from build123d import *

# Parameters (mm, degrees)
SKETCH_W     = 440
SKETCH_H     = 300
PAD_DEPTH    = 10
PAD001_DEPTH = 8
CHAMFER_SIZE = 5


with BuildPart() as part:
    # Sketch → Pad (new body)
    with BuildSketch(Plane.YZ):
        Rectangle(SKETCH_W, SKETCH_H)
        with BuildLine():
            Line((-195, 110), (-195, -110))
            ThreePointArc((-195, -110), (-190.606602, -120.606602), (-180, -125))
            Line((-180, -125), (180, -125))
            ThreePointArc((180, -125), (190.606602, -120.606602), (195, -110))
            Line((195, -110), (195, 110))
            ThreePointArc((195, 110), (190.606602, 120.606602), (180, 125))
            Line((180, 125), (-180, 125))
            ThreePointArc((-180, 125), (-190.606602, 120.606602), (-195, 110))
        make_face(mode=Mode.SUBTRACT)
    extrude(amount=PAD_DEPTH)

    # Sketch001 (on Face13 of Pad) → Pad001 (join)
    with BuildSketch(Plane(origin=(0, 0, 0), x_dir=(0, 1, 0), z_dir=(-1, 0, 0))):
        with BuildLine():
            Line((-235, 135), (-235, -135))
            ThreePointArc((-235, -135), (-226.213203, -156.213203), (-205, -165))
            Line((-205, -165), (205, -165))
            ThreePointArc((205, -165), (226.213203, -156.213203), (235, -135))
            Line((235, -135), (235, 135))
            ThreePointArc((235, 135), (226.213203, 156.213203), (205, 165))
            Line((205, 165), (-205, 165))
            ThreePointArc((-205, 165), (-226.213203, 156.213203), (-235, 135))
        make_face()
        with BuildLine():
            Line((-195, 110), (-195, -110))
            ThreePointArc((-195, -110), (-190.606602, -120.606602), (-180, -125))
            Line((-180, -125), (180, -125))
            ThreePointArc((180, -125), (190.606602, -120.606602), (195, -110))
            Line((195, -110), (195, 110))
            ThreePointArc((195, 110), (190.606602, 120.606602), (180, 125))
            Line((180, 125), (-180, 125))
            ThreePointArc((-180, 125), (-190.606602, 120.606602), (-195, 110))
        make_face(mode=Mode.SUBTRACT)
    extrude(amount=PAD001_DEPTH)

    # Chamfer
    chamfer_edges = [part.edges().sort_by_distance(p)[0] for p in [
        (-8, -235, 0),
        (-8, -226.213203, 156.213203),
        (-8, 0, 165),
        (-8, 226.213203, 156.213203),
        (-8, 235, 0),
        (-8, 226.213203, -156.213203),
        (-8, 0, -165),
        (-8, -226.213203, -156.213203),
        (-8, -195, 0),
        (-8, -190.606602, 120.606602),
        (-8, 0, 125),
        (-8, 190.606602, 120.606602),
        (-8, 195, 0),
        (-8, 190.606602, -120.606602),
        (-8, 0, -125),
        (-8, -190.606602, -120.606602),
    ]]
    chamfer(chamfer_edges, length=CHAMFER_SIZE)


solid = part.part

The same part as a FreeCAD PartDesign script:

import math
import FreeCAD as App
import Part
import Sketcher
Q = App.Units.Quantity


def edges_at(feature, points):
    """Names of the edges that pass closest to the given points."""
    edges = feature.Shape.Edges
    near = lambda p: min(range(len(edges)), key=lambda i: edges[i].distToShape(Part.Vertex(*p))[0])
    return sorted({f"Edge{near(p) + 1}" for p in points})

doc = App.newDocument("Part")
body = doc.addObject("PartDesign::Body", "Body")

# Sketch on YZ plane
sketch1 = body.newObject("Sketcher::SketchObject", "Sketch")
sketch1.AttachmentSupport = (doc.getObject("YZ_Plane"), [""])
sketch1.MapMode = "FlatFace"
sketch1.addGeometry([
    Part.LineSegment(App.Vector(-220, 150, 0), App.Vector(-220, -150, 0)),  # 0
    Part.LineSegment(App.Vector(-220, -150, 0), App.Vector(220, -150, 0)),  # 1
    Part.LineSegment(App.Vector(220, -150, 0), App.Vector(220, 150, 0)),  # 2
    Part.LineSegment(App.Vector(220, 150, 0), App.Vector(-220, 150, 0)),  # 3
    Part.LineSegment(App.Vector(-195, -110, 0), App.Vector(-195, 110, 0)),  # 4
    Part.ArcOfCircle(Part.Circle(App.Vector(-180, 110, 0), App.Vector(0, 0, 1), 15), math.radians(90), math.radians(180)),  # 5
    Part.LineSegment(App.Vector(-180, 125, 0), App.Vector(180, 125, 0)),  # 6
    Part.ArcOfCircle(Part.Circle(App.Vector(180, 110, 0), App.Vector(0, 0, 1), 15), math.radians(0), math.radians(90)),  # 7
    Part.LineSegment(App.Vector(195, 110, 0), App.Vector(195, -110, 0)),  # 8
    Part.ArcOfCircle(Part.Circle(App.Vector(180, -110, 0), App.Vector(0, 0, 1), 15), math.radians(-90), math.radians(0)),  # 9
    Part.LineSegment(App.Vector(180, -125, 0), App.Vector(-180, -125, 0)),  # 10
    Part.ArcOfCircle(Part.Circle(App.Vector(-180, -110, 0), App.Vector(0, 0, 1), 15), math.radians(180), math.radians(270)),  # 11
], False)
sketch1.addConstraint([
    Sketcher.Constraint("Coincident", 0, 2, 1, 1),
    Sketcher.Constraint("Coincident", 1, 2, 2, 1),
    Sketcher.Constraint("Coincident", 2, 2, 3, 1),
    Sketcher.Constraint("Coincident", 3, 2, 0, 1),
    Sketcher.Constraint("Tangent", 4, 2, 5, 2),
    Sketcher.Constraint("Tangent", 5, 1, 6, 1),
    Sketcher.Constraint("Tangent", 6, 2, 7, 2),
    Sketcher.Constraint("Tangent", 7, 1, 8, 1),
    Sketcher.Constraint("Tangent", 8, 2, 9, 2),
    Sketcher.Constraint("Tangent", 9, 1, 10, 1),
    Sketcher.Constraint("Tangent", 10, 2, 11, 2),
    Sketcher.Constraint("Tangent", 11, 1, 4, 1),
    Sketcher.Constraint("Vertical", 0),
    Sketcher.Constraint("Horizontal", 1),
    Sketcher.Constraint("Vertical", 2),
    Sketcher.Constraint("Horizontal", 3),
    Sketcher.Constraint("Vertical", 4),
    Sketcher.Constraint("Horizontal", 6),
    Sketcher.Constraint("Vertical", 8),
    Sketcher.Constraint("Horizontal", 10),
    Sketcher.Constraint("Equal", 5, 7),
    Sketcher.Constraint("Equal", 7, 9),
    Sketcher.Constraint("Equal", 9, 11),
    Sketcher.Constraint("Symmetric", 5, 3, 9, 3, -1, 1),
    Sketcher.Constraint("Symmetric", 0, 2, 2, 2, -1, 1),
    Sketcher.Constraint("Radius", 5, Q("14.999999 mm")),
    Sketcher.Constraint("DistanceX", 1, 1, 1, 2, Q("440 mm")),
    Sketcher.Constraint("DistanceX", 6, 1, 6, 2, Q("360 mm")),
    Sketcher.Constraint("DistanceY", 0, 2, 0, 1, Q("300 mm")),
    Sketcher.Constraint("DistanceY", 4, 1, 4, 2, Q("220 mm")),
])
pad1 = body.newObject("PartDesign::Pad", "Pad")
pad1.Profile = sketch1
pad1.Length = 10

# Sketch on YZ plane
sketch2 = body.newObject("Sketcher::SketchObject", "Sketch001")
sketch2.AttachmentSupport = (doc.getObject("YZ_Plane"), [""])
sketch2.MapMode = "FlatFace"
sketch2.addGeometry([
    Part.LineSegment(App.Vector(-235, -135, 0), App.Vector(-235, 135, 0)),  # 0
    Part.ArcOfCircle(Part.Circle(App.Vector(-205, 135, 0), App.Vector(0, 0, 1), 30), math.radians(90), math.radians(180)),  # 1
    Part.LineSegment(App.Vector(-205, 165, 0), App.Vector(205, 165, 0)),  # 2
    Part.ArcOfCircle(Part.Circle(App.Vector(205, 135, 0), App.Vector(0, 0, 1), 30), math.radians(0), math.radians(90)),  # 3
    Part.LineSegment(App.Vector(235, 135, 0), App.Vector(235, -135, 0)),  # 4
    Part.ArcOfCircle(Part.Circle(App.Vector(205, -135, 0), App.Vector(0, 0, 1), 30), math.radians(-90), math.radians(0)),  # 5
    Part.LineSegment(App.Vector(205, -165, 0), App.Vector(-205, -165, 0)),  # 6
    Part.ArcOfCircle(Part.Circle(App.Vector(-205, -135, 0), App.Vector(0, 0, 1), 30), math.radians(-180), math.radians(-90)),  # 7
    Part.LineSegment(App.Vector(-195, 110, 0), App.Vector(-195, -110, 0)),  # 8
    Part.ArcOfCircle(Part.Circle(App.Vector(-180, -110, 0), App.Vector(0, 0, 1), 15), math.radians(180), math.radians(270)),  # 9
    Part.LineSegment(App.Vector(-180, -125, 0), App.Vector(180, -125, 0)),  # 10
    Part.ArcOfCircle(Part.Circle(App.Vector(180, -110, 0), App.Vector(0, 0, 1), 15), math.radians(-90), math.radians(0)),  # 11
    Part.LineSegment(App.Vector(195, -110, 0), App.Vector(195, 110, 0)),  # 12
    Part.ArcOfCircle(Part.Circle(App.Vector(180, 110, 0), App.Vector(0, 0, 1), 15), math.radians(0), math.radians(90)),  # 13
    Part.LineSegment(App.Vector(180, 125, 0), App.Vector(-180, 125, 0)),  # 14
    Part.ArcOfCircle(Part.Circle(App.Vector(-180, 110, 0), App.Vector(0, 0, 1), 15), math.radians(90), math.radians(180)),  # 15
], False)
sketch2.addConstraint([
    Sketcher.Constraint("Tangent", 0, 2, 1, 2),
    Sketcher.Constraint("Tangent", 1, 1, 2, 1),
    Sketcher.Constraint("Tangent", 2, 2, 3, 2),
    Sketcher.Constraint("Tangent", 3, 1, 4, 1),
    Sketcher.Constraint("Tangent", 4, 2, 5, 2),
    Sketcher.Constraint("Tangent", 5, 1, 6, 1),
    Sketcher.Constraint("Tangent", 6, 2, 7, 2),
    Sketcher.Constraint("Tangent", 7, 1, 0, 1),
    Sketcher.Constraint("Tangent", 8, 2, 9, 1),
    Sketcher.Constraint("Tangent", 9, 2, 10, 1),
    Sketcher.Constraint("Tangent", 10, 2, 11, 1),
    Sketcher.Constraint("Tangent", 11, 2, 12, 1),
    Sketcher.Constraint("Tangent", 12, 2, 13, 1),
    Sketcher.Constraint("Tangent", 13, 2, 14, 1),
    Sketcher.Constraint("Tangent", 14, 2, 15, 1),
    Sketcher.Constraint("Tangent", 15, 2, 8, 1),
    Sketcher.Constraint("Vertical", 0),
    Sketcher.Constraint("Horizontal", 2),
    Sketcher.Constraint("Vertical", 4),
    Sketcher.Constraint("Horizontal", 6),
    Sketcher.Constraint("Vertical", 8),
    Sketcher.Constraint("Horizontal", 10),
    Sketcher.Constraint("Vertical", 12),
    Sketcher.Constraint("Horizontal", 14),
    Sketcher.Constraint("Equal", 1, 3),
    Sketcher.Constraint("Equal", 3, 5),
    Sketcher.Constraint("Equal", 5, 7),
    Sketcher.Constraint("Equal", 9, 11),
    Sketcher.Constraint("Equal", 11, 13),
    Sketcher.Constraint("Equal", 13, 15),
    Sketcher.Constraint("Symmetric", 1, 3, 5, 3, -1, 1),
    Sketcher.Constraint("Symmetric", 9, 3, 13, 3, -1, 1),
    Sketcher.Constraint("Radius", 1, Q("30.000001 mm")),
    Sketcher.Constraint("Radius", 9, Q("14.999999 mm")),
    Sketcher.Constraint("DistanceX", 2, 1, 2, 2, Q("410 mm")),
    Sketcher.Constraint("DistanceX", 10, 1, 10, 2, Q("360 mm")),
    Sketcher.Constraint("DistanceY", 0, 1, 0, 2, Q("270 mm")),
    Sketcher.Constraint("DistanceY", 8, 2, 8, 1, Q("220 mm")),
])
pad2 = body.newObject("PartDesign::Pad", "Pad001")
pad2.Profile = sketch2
pad2.Length = 8
pad2.Reversed = True
doc.recompute()

chamfer = body.newObject("PartDesign::Chamfer", "Chamfer")
chamfer.Base = (pad2, edges_at(pad2, [
    (-8, -235, 0),
    (-8, -226.213, 156.213),
    (-8, 0, 165),
    (-8, 226.213, 156.213),
    (-8, 235, 0),
    (-8, 226.213, -156.213),
    (-8, 0, -165),
    (-8, -226.213, -156.213),
    (-8, -195, 0),
    (-8, -190.607, 120.607),
    (-8, 0, 125),
    (-8, 190.607, 120.607),
    (-8, 195, 0),
    (-8, 190.607, -120.607),
    (-8, 0, -125),
    (-8, -190.607, -120.607),
]))
chamfer.Size = 5

doc.recompute()
